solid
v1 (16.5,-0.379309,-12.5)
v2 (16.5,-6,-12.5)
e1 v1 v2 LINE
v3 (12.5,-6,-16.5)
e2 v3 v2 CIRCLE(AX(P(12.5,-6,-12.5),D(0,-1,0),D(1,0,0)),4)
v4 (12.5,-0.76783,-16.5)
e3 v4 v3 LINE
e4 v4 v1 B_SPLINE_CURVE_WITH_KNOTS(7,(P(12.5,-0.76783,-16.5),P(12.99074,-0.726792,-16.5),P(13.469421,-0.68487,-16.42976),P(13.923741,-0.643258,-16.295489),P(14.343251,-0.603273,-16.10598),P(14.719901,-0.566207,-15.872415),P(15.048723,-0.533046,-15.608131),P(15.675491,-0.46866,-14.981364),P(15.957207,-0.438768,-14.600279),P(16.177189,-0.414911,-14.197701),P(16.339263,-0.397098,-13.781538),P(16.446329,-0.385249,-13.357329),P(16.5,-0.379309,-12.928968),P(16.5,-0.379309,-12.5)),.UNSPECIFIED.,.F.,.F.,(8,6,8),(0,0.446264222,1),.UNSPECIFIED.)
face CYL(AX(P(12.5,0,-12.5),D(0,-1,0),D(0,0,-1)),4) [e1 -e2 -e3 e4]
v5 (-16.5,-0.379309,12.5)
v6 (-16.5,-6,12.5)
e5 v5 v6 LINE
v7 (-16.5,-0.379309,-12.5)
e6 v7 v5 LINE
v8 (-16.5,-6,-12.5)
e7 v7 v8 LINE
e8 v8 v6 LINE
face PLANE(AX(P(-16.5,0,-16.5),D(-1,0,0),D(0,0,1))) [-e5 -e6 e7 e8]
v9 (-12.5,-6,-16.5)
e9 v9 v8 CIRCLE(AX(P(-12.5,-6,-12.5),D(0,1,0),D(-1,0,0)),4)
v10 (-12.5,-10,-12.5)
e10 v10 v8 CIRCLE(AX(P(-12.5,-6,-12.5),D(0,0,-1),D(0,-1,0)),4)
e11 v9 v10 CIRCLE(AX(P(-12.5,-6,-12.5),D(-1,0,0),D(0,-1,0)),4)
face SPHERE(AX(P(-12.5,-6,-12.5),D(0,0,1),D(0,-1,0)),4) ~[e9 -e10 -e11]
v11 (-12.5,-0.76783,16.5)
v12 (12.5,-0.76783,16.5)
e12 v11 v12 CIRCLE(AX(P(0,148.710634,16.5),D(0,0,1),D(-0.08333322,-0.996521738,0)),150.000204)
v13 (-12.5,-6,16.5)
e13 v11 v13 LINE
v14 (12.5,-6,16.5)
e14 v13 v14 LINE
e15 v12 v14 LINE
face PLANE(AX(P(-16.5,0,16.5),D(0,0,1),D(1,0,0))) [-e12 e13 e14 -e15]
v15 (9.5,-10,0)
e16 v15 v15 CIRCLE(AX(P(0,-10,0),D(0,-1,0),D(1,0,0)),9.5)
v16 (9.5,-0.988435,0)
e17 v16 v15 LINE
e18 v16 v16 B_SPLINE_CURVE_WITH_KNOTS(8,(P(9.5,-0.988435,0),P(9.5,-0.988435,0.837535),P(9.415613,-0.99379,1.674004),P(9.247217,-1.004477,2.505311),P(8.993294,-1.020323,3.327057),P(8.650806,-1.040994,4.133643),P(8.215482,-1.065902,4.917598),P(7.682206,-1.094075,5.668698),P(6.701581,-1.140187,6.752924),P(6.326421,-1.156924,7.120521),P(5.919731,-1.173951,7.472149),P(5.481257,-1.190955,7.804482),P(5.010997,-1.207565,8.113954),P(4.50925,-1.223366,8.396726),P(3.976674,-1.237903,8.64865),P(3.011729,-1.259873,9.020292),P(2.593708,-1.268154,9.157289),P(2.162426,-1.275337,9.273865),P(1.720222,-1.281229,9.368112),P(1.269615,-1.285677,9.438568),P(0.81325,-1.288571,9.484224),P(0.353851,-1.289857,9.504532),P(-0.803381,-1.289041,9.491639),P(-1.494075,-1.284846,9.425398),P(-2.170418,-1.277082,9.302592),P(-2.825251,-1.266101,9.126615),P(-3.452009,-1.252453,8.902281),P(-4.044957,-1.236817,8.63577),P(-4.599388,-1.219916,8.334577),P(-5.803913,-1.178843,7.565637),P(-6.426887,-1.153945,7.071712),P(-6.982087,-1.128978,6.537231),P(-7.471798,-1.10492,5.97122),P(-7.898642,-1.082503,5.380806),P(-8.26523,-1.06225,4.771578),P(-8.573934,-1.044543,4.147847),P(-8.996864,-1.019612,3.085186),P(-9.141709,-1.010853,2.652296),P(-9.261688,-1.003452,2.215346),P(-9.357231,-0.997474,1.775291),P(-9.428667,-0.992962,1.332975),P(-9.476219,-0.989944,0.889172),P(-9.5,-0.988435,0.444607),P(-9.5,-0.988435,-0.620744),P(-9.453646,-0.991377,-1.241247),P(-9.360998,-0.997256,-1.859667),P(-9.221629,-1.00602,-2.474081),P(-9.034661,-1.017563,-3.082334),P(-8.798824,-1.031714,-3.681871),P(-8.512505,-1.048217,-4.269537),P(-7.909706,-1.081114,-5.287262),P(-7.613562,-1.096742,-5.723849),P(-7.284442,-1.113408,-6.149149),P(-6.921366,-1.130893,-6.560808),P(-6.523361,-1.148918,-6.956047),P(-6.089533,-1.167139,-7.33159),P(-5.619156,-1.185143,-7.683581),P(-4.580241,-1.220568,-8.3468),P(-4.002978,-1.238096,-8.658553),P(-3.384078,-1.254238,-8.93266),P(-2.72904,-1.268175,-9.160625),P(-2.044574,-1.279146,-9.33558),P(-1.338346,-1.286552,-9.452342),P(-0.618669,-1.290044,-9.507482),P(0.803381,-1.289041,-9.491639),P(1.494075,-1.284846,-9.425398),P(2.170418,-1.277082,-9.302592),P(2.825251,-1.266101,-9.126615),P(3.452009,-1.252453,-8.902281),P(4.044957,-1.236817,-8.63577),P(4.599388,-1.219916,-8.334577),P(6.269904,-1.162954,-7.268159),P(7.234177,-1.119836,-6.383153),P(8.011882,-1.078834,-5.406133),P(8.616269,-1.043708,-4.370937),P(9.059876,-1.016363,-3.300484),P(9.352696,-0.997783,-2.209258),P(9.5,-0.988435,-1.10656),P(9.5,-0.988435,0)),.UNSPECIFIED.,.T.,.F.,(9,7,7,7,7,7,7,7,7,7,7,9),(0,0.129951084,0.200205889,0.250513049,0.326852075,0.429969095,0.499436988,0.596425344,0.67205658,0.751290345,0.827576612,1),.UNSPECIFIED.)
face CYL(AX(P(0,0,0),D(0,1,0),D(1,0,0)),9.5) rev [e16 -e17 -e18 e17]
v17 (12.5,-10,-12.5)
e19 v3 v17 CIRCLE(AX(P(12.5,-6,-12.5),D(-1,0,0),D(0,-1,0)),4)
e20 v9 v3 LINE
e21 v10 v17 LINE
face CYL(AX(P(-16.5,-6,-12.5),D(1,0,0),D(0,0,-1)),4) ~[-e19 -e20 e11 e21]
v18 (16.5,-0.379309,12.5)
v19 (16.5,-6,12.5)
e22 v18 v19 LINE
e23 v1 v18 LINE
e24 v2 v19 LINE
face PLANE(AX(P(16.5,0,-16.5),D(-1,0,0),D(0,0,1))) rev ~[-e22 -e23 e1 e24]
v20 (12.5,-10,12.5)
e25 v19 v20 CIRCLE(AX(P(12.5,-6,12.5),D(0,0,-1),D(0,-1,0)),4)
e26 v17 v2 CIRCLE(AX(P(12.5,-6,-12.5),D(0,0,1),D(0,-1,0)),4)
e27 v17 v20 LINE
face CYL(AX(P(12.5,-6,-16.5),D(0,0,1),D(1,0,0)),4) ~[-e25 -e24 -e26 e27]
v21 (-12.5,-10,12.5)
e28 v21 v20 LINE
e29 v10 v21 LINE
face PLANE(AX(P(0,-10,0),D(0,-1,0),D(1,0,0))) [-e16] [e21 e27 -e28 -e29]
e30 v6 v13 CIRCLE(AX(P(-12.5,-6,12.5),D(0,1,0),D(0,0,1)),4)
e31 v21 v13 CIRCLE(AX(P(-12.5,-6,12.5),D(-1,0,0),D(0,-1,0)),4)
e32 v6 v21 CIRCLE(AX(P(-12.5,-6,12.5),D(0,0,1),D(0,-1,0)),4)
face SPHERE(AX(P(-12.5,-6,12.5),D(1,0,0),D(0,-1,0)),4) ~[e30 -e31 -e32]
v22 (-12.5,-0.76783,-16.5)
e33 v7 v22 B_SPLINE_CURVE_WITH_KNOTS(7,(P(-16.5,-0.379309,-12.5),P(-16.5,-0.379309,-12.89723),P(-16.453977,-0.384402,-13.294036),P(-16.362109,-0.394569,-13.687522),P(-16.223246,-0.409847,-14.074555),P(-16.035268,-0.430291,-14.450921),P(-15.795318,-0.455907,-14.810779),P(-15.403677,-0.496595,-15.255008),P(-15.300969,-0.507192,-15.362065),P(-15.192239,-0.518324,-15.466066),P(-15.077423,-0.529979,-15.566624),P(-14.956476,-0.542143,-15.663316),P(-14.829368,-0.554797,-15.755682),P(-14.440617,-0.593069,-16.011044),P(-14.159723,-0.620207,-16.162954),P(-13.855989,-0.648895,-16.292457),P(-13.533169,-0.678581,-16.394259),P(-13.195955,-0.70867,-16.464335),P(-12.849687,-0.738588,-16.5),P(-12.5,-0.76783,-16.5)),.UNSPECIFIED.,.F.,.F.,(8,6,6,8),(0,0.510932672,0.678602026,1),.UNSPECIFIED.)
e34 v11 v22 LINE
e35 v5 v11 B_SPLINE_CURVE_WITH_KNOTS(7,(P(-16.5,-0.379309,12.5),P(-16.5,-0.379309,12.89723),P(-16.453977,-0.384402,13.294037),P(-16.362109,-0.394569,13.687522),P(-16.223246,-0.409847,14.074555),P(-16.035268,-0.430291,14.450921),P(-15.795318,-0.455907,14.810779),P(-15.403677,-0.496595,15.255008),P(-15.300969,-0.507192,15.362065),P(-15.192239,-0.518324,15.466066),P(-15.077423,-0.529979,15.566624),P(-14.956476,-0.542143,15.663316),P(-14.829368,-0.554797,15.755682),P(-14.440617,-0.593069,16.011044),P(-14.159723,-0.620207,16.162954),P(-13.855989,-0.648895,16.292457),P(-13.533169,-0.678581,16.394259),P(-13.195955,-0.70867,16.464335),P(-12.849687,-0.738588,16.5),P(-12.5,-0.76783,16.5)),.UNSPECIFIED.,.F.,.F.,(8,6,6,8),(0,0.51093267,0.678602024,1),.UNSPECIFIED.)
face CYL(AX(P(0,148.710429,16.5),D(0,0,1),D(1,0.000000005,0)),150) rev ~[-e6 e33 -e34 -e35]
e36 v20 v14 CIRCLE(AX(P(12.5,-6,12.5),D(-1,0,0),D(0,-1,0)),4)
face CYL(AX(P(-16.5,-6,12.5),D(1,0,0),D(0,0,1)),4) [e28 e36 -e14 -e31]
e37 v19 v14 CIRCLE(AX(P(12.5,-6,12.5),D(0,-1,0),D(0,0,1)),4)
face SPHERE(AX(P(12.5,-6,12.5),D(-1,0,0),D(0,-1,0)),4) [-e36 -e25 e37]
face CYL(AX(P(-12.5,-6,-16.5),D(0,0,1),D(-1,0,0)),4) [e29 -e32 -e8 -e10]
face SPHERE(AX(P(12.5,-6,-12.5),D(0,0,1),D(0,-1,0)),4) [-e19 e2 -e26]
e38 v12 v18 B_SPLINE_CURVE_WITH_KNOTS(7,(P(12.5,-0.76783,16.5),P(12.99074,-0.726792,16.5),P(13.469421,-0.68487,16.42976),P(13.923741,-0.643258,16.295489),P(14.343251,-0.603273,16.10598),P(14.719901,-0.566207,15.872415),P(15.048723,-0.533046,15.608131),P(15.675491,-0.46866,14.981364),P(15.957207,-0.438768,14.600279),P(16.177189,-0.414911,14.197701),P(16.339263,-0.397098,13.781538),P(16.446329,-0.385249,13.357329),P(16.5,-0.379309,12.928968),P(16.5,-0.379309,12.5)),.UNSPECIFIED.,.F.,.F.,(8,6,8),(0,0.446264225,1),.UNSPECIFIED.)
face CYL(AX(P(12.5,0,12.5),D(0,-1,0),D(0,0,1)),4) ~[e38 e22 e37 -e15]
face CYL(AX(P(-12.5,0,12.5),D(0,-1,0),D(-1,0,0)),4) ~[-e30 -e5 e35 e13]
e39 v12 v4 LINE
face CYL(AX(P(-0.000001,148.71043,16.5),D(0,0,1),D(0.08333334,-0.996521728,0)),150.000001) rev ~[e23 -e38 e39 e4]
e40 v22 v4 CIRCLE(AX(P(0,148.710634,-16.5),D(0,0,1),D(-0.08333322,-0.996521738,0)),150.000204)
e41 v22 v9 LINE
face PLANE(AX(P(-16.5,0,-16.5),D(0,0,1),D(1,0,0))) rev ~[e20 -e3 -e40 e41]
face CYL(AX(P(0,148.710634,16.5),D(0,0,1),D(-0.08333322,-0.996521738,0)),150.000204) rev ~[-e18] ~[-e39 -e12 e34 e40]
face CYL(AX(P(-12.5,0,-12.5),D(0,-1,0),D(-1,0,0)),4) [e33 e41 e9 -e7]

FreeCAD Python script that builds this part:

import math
import FreeCAD as App
import Part
import Sketcher


def edges_at(feature, points):
    """Names of the edges that pass closest to the given points."""
    edges = feature.Shape.Edges
    near = lambda p: min(range(len(edges)), key=lambda i: edges[i].distToShape(Part.Vertex(*p))[0])
    return sorted({f"Edge{near(p) + 1}" for p in points})


def add_polygon(sketch, points):
    """Adds a closed chain of lines whose ends are joined by coincident constraints."""
    first, n = sketch.GeometryCount, len(points)
    for a, b in zip(points, points[1:] + points[:1]):
        sketch.addGeometry(Part.LineSegment(App.Vector(*a, 0), App.Vector(*b, 0)), False)
    for i in range(n):
        sketch.addConstraint(Sketcher.Constraint("Coincident", first + i, 2, first + (i + 1) % n, 1))

doc = App.newDocument("Part")
body = doc.addObject("PartDesign::Body", "Body")

sketch1 = body.newObject("Sketcher::SketchObject", "Sketch")
sketch1.AttachmentSupport = (doc.getObject("XZ_Plane"), [""])
sketch1.MapMode = "FlatFace"
add_polygon(sketch1, [(-16, 16), (-16, -16), (16, -16), (16, 16)])
sketch1.addGeometry(Part.Circle(App.Vector(0, 0, 0), App.Vector(0, 0, 1), 10), False)
sketch1.addConstraint(Sketcher.Constraint("Vertical", 0))
sketch1.addConstraint(Sketcher.Constraint("Horizontal", 1))
sketch1.addConstraint(Sketcher.Constraint("Vertical", 2))
sketch1.addConstraint(Sketcher.Constraint("Horizontal", 3))
sketch1.addConstraint(Sketcher.Constraint("Coincident", 4, 3, -1, 1))
sketch1.addConstraint(Sketcher.Constraint("Symmetric", 0, 2, 2, 2, -1, 1))
sketch1.addConstraint(Sketcher.Constraint("Equal", 3, 0))
sketch1.addConstraint(Sketcher.Constraint("Diameter", 4, 19.0))
sketch1.addConstraint(Sketcher.Constraint("DistanceX", 1, 1, 1, 2, 33.0))
pad1 = body.newObject("PartDesign::Pad", "Pad")
pad1.Profile = sketch1
pad1.Length = 10
doc.recompute()

fillet = body.newObject("PartDesign::Fillet", "Fillet")
fillet.Base = (pad1, edges_at(pad1, [
    (0, -10, 16.5),
    (16.5, -10, 0),
    (-16.5, -10, 0),
    (0, -10, -16.5),
    (-16.5, -5, 16.5),
    (16.5, -5, 16.5),
    (16.5, -5, -16.5),
    (-16.5, -5, -16.5),
]))
fillet.Radius = 4

sketch2 = body.newObject("Sketcher::SketchObject", "Sketch001")
sketch2.AttachmentSupport = (doc.getObject("XY_Plane"), [""])
sketch2.MapMode = "FlatFace"
sketch2.AttachmentOffset = App.Placement(App.Vector(0, 0, 16.5), App.Rotation())
sketch2.addGeometry(Part.ArcOfCircle(Part.Circle(App.Vector(0, 148.710634, 0), App.Vector(0, 0, 1), 150.000204), math.radians(-94.780185), math.radians(-85.219815)), False)
sketch2.addGeometry(Part.ArcOfCircle(Part.Circle(App.Vector(-0.000001, 148.71043, 0), App.Vector(0, 0, 1), 150.000001), math.radians(-85.219808), math.radians(0)), False)
sketch2.addGeometry(Part.ArcOfCircle(Part.Circle(App.Vector(0, 148.710429, 0), App.Vector(0, 0, 1), 150), math.radians(0), math.radians(265.219808)), False)
sketch2.addConstraint(Sketcher.Constraint("Coincident", 0, 2, 1, 1))
sketch2.addConstraint(Sketcher.Constraint("Coincident", 1, 2, 2, 1))
sketch2.addConstraint(Sketcher.Constraint("Coincident", 2, 2, 0, 1))
sketch2.addConstraint(Sketcher.Constraint("Coincident", 2, 3, 1, 3))
sketch2.addConstraint(Sketcher.Constraint("PointOnObject", 0, 3, -2))
sketch2.addConstraint(Sketcher.Constraint("Radius", 1, 150.000001))
sketch2.addConstraint(Sketcher.Constraint("DistanceX", 2, 2, 0, 2, 25.0))
sketch2.addConstraint(Sketcher.Constraint("DistanceX", -1, 1, 0, 2, 12.5))
sketch2.addConstraint(Sketcher.Constraint("Radius", 0, 150.000204))
sketch2.addConstraint(Sketcher.Constraint("DistanceY", -1, 1, 1, 3, 148.71043))
sketch2.addConstraint(Sketcher.Constraint("DistanceY", -1, 1, 1, 2, 148.71043))
pocket1 = body.newObject("PartDesign::Pocket", "Pocket")
pocket1.Profile = sketch2
pocket1.Length = 500

doc.recompute()
